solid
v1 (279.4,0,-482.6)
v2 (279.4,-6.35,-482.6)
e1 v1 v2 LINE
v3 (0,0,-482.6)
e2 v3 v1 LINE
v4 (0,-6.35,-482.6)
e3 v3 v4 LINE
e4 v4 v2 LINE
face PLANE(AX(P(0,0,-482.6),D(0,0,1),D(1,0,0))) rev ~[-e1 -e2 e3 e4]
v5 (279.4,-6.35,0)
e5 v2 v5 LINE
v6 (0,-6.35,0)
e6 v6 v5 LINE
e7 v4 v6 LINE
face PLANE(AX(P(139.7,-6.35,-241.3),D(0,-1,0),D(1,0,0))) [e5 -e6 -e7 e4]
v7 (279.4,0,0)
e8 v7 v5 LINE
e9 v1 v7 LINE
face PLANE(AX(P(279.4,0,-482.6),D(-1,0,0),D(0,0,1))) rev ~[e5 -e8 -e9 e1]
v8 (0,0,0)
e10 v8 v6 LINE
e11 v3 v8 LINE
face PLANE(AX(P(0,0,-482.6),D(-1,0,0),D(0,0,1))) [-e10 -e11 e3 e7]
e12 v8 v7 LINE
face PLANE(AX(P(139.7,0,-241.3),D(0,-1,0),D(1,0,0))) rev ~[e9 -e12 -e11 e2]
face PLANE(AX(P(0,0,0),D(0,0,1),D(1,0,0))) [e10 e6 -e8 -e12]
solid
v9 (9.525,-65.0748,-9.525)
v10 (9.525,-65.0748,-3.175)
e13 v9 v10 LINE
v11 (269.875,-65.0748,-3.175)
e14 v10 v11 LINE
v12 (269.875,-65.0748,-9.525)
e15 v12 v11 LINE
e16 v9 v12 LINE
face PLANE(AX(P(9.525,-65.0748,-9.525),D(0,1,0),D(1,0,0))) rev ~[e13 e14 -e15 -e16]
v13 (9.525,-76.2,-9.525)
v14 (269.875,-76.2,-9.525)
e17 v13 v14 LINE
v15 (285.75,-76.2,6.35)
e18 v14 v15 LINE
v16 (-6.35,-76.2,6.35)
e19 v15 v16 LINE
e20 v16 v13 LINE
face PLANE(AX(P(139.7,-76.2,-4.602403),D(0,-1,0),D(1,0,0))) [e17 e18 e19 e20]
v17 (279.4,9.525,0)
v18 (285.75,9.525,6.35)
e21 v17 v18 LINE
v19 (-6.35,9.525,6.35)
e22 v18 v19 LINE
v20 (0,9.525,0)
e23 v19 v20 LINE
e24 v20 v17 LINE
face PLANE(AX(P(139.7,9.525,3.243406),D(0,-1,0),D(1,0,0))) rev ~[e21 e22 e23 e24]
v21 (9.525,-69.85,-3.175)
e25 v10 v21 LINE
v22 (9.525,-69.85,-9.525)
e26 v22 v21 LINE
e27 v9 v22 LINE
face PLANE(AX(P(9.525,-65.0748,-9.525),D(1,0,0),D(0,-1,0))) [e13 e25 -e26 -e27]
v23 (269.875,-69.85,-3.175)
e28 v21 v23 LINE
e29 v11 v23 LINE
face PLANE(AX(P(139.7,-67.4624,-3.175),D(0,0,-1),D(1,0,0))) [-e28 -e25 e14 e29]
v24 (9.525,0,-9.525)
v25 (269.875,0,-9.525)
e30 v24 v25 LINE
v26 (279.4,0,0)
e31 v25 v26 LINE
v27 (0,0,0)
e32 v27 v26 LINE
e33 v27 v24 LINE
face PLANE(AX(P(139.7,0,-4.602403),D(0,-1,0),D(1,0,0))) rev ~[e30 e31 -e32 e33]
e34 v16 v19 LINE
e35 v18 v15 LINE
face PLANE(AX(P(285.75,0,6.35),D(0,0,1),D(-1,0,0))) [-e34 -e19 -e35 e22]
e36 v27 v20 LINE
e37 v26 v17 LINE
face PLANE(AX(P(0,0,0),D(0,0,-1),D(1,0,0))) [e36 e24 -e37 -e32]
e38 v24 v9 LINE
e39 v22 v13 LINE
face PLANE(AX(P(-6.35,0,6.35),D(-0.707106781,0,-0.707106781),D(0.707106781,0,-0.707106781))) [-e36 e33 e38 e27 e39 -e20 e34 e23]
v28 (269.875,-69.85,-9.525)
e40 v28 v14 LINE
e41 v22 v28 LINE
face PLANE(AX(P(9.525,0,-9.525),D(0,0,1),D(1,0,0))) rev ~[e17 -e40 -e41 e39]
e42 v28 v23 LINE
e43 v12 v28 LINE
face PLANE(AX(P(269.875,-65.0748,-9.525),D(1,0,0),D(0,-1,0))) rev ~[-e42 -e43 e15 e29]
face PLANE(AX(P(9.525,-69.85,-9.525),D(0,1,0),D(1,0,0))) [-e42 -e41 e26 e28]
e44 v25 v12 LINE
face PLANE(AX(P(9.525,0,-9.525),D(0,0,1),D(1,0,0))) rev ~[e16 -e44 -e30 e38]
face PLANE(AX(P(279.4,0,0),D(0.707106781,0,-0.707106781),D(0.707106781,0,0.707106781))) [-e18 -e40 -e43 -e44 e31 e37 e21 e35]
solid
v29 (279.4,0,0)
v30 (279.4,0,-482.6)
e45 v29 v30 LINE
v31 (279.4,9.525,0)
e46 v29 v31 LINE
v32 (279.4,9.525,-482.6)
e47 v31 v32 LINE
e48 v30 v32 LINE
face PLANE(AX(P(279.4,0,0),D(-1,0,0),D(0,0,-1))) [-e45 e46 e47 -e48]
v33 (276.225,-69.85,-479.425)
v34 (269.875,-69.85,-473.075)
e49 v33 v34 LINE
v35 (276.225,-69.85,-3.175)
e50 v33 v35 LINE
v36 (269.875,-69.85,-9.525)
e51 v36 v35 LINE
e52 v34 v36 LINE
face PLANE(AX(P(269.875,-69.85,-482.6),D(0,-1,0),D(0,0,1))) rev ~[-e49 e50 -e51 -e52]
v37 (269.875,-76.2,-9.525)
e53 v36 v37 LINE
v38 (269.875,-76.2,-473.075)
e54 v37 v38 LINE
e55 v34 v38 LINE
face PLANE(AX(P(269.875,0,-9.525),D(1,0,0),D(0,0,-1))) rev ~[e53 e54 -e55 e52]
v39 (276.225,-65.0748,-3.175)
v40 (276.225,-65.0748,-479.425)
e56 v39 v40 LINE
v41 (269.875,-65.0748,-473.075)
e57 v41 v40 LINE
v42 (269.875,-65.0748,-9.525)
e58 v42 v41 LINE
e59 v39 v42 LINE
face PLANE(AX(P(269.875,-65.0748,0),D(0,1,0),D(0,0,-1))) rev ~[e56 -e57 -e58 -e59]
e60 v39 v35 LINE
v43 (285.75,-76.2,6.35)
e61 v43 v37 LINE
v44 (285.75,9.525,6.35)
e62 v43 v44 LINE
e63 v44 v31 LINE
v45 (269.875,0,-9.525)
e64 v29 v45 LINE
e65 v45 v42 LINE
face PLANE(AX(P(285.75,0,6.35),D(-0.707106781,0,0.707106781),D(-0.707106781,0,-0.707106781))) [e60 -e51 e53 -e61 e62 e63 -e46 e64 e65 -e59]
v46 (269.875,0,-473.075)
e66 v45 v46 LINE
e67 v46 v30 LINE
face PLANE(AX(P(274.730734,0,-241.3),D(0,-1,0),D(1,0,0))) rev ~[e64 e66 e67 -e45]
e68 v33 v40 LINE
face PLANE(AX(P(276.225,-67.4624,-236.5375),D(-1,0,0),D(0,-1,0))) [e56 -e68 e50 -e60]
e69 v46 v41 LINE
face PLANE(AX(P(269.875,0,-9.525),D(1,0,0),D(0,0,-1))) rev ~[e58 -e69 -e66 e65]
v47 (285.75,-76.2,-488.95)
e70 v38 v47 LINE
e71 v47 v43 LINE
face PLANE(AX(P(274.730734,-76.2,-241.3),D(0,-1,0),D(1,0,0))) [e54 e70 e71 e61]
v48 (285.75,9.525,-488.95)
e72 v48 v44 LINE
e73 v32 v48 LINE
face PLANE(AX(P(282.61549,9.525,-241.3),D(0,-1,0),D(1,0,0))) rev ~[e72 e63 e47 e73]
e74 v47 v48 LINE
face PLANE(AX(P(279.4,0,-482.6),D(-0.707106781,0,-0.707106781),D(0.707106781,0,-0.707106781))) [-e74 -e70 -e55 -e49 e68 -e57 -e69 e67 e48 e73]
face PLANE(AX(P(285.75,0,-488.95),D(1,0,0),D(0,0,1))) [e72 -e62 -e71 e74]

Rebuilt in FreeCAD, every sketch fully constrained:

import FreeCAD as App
import Part
import Sketcher
Q = App.Units.Quantity

doc = App.newDocument("Part")
params = doc.addObject("Spreadsheet::Sheet", "Params")
for row, (alias, value) in enumerate([
    ("sketch1_width", "11 in"),
    ("sketch1_height", "19 in"),
    ("pad1_length", "0.25 in"),
    ("sketch2_height", "19.5 in"),
    ("sketch2_height2", "18.25 in"),
    ("pad2_length", "3 in"),
    ("sketch3_height", "19 in"),
    ("sketch3_height2", "19.5 in"),
    ("pad3_length", "0.375 in"),
    ("sketch4_height", "19 in"),
    ("sketch4_width", "0.188 in"),
    ("pocket1_length", "0.25 in"),
    ("sketch5_width", "11.5 in"),
    ("sketch5_width2", "10.25 in"),
    ("pad4_length", "3 in"),
    ("sketch6_width", "11 in"),
    ("sketch6_width2", "11.5 in"),
    ("pad5_length", "0.375 in"),
    ("sketch7_width", "10.25 in"),
    ("sketch7_height", "0.188 in"),
    ("pocket2_length", "0.25 in"),
], start=1):
    params.set(f"A{row}", alias)
    params.set(f"B{row}", "=" + value)
    params.setAlias(f"B{row}", alias)

body = doc.addObject("PartDesign::Body", "Body")

# Sketch on XZ plane
sketch1 = doc.addObject("Sketcher::SketchObject", "Sketch")
body.addObject(sketch1)
sketch1.AttachmentSupport = (doc.XZ_Plane, [""])
sketch1.MapMode = "FlatFace"
sketch1.addGeometry([
    Part.LineSegment(App.Vector(0, 0, 0), App.Vector(0, -483, 0)),
    Part.LineSegment(App.Vector(0, -483, 0), App.Vector(279, -483, 0)),
    Part.LineSegment(App.Vector(279, -483, 0), App.Vector(279, 0, 0)),
    Part.LineSegment(App.Vector(279, 0, 0), App.Vector(0, 0, 0)),
], False)
sketch1.addConstraint([
    Sketcher.Constraint("Coincident", 0, 2, 1, 1),
    Sketcher.Constraint("Coincident", 1, 2, 2, 1),
    Sketcher.Constraint("Coincident", 2, 2, 3, 1),
    Sketcher.Constraint("Coincident", 3, 2, 0, 1),
    Sketcher.Constraint("Vertical", 0),
    Sketcher.Constraint("Horizontal", 1),
    Sketcher.Constraint("Vertical", 2),
    Sketcher.Constraint("Horizontal", 3),
    Sketcher.Constraint("Coincident", 3, 2, -1, 1),
    Sketcher.Constraint("DistanceX", 1, 1, 1, 2, Q("11 in")),
    Sketcher.Constraint("DistanceY", 0, 2, 0, 1, Q("19 in")),
])
sketch1.setExpression("Constraints[9]", "Params.sketch1_width")
sketch1.setExpression("Constraints[10]", "Params.sketch1_height")
pad1 = doc.addObject("PartDesign::Pad", "Pad")
body.addObject(pad1)
pad1.Profile = sketch1
pad1.setExpression("Length", "Params.pad1_length")
body2 = doc.addObject("PartDesign::Body", "Body001")

# Sketch on XZ plane
sketch2 = doc.addObject("Sketcher::SketchObject", "Sketch001")
body2.addObject(sketch2)
sketch2.AttachmentSupport = (doc.getObject("XZ_Plane001"), [""])
sketch2.MapMode = "FlatFace"
sketch2.addGeometry([
    Part.LineSegment(App.Vector(270, -10, 0), App.Vector(270, -473, 0)),
    Part.LineSegment(App.Vector(270, -473, 0), App.Vector(286, -489, 0)),
    Part.LineSegment(App.Vector(286, -489, 0), App.Vector(286, 6, 0)),
    Part.LineSegment(App.Vector(286, 6, 0), App.Vector(270, -10, 0)),
], False)
sketch2.addConstraint([
    Sketcher.Constraint("Coincident", 0, 2, 1, 1),
    Sketcher.Constraint("Coincident", 1, 2, 2, 1),
    Sketcher.Constraint("Coincident", 2, 2, 3, 1),
    Sketcher.Constraint("Coincident", 3, 2, 0, 1),
    Sketcher.Constraint("Vertical", 0),
    Sketcher.Constraint("Vertical", 2),
    Sketcher.Constraint("Perpendicular", 1, 3),
    Sketcher.Constraint("Equal", 1, 3),
    Sketcher.Constraint("DistanceY", 2, 1, 2, 2, Q("19.5 in")),
    Sketcher.Constraint("DistanceY", 0, 2, 0, 1, Q("18.25 in")),
    Sketcher.Constraint("DistanceX", -1, 1, 1, 2, Q("11.25 in")),
    Sketcher.Constraint("DistanceY", 1, 2, -1, 1, Q("19.25 in")),
])
sketch2.setExpression("Constraints[8]", "Params.sketch2_height")
sketch2.setExpression("Constraints[9]", "Params.sketch2_height2")
pad2 = doc.addObject("PartDesign::Pad", "Pad001")
body2.addObject(pad2)
pad2.Profile = sketch2
pad2.setExpression("Length", "Params.pad2_length")

# Sketch on XZ plane
sketch3 = doc.addObject("Sketcher::SketchObject", "Sketch002")
body2.addObject(sketch3)
sketch3.AttachmentSupport = (doc.getObject("XZ_Plane001"), [""])
sketch3.MapMode = "FlatFace"
sketch3.addGeometry([
    Part.LineSegment(App.Vector(286, 6, 0), App.Vector(279, 0, 0)),
    Part.LineSegment(App.Vector(279, 0, 0), App.Vector(279, -483, 0)),
    Part.LineSegment(App.Vector(279, -483, 0), App.Vector(286, -489, 0)),
    Part.LineSegment(App.Vector(286, -489, 0), App.Vector(286, 6, 0)),
], False)
sketch3.addConstraint([
    Sketcher.Constraint("Coincident", 0, 2, 1, 1),
    Sketcher.Constraint("Coincident", 1, 2, 2, 1),
    Sketcher.Constraint("Coincident", 2, 2, 3, 1),
    Sketcher.Constraint("Coincident", 3, 2, 0, 1),
    Sketcher.Constraint("Vertical", 1),
    Sketcher.Constraint("Vertical", 3),
    Sketcher.Constraint("PointOnObject", 0, 2, -1),
    Sketcher.Constraint("Perpendicular", 0, 2),
    Sketcher.Constraint("Equal", 0, 2),
    Sketcher.Constraint("DistanceY", 1, 2, 1, 1, Q("19 in")),
    Sketcher.Constraint("DistanceY", 3, 1, 3, 2, Q("19.5 in")),
    Sketcher.Constraint("DistanceX", -1, 1, 0, 2, Q("11 in")),
])
sketch3.setExpression("Constraints[9]", "Params.sketch3_height")
sketch3.setExpression("Constraints[10]", "Params.sketch3_height2")
pad3 = doc.addObject("PartDesign::Pad", "Pad002")
body2.addObject(pad3)
pad3.Profile = sketch3
pad3.setExpression("Length", "Params.pad3_length")
pad3.Reversed = True

# Sketch on YZ plane
sketch4 = doc.addObject("Sketcher::SketchObject", "Sketch003")
body2.addObject(sketch4)
sketch4.AttachmentSupport = (doc.getObject("YZ_Plane001"), [""])
sketch4.MapMode = "FlatFace"
sketch4.AttachmentOffset = App.Placement(App.Vector(0, 0, 10.625 * 25.4), App.Rotation())
sketch4.addGeometry([
    Part.LineSegment(App.Vector(-65.1, 0, 0), App.Vector(-65.1, -482.6, 0)),
    Part.LineSegment(App.Vector(-65.1, -482.6, 0), App.Vector(-69.8, -482.6, 0)),
    Part.LineSegment(App.Vector(-69.8, -482.6, 0), App.Vector(-69.8, 0, 0)),
    Part.LineSegment(App.Vector(-69.8, 0, 0), App.Vector(-65.1, 0, 0)),
], False)
sketch4.addConstraint([
    Sketcher.Constraint("Coincident", 0, 2, 1, 1),
    Sketcher.Constraint("Coincident", 1, 2, 2, 1),
    Sketcher.Constraint("Coincident", 2, 2, 3, 1),
    Sketcher.Constraint("Coincident", 3, 2, 0, 1),
    Sketcher.Constraint("Vertical", 0),
    Sketcher.Constraint("Horizontal", 1),
    Sketcher.Constraint("Vertical", 2),
    Sketcher.Constraint("Horizontal", 3),
    Sketcher.Constraint("PointOnObject", 2, 2, -1),
    Sketcher.Constraint("DistanceY", 0, 2, 0, 1, Q("19 in")),
    Sketcher.Constraint("DistanceX", 1, 2, 1, 1, Q("0.188 in")),
    Sketcher.Constraint("DistanceX", 1, 2, -1, 1, Q("2.75 in")),
])
sketch4.setExpression("Constraints[9]", "Params.sketch4_height")
sketch4.setExpression("Constraints[10]", "Params.sketch4_width")
pocket1 = doc.addObject("PartDesign::Pocket", "Pocket")
body2.addObject(pocket1)
pocket1.Profile = sketch4
pocket1.setExpression("Length", "Params.pocket1_length")
pocket1.Reversed = True
body3 = doc.addObject("PartDesign::Body", "Body002")

# Sketch on XZ plane
sketch5 = doc.addObject("Sketcher::SketchObject", "Sketch004")
body3.addObject(sketch5)
sketch5.AttachmentSupport = (doc.getObject("XZ_Plane002"), [""])
sketch5.MapMode = "FlatFace"
sketch5.addGeometry([
    Part.LineSegment(App.Vector(10, -10, 0), App.Vector(270, -10, 0)),
    Part.LineSegment(App.Vector(270, -10, 0), App.Vector(286, 6, 0)),
    Part.LineSegment(App.Vector(286, 6, 0), App.Vector(-6, 6, 0)),
    Part.LineSegment(App.Vector(-6, 6, 0), App.Vector(10, -10, 0)),
], False)
sketch5.addConstraint([
    Sketcher.Constraint("Coincident", 0, 2, 1, 1),
    Sketcher.Constraint("Coincident", 1, 2, 2, 1),
    Sketcher.Constraint("Coincident", 2, 2, 3, 1),
    Sketcher.Constraint("Coincident", 3, 2, 0, 1),
    Sketcher.Constraint("Horizontal", 0),
    Sketcher.Constraint("Horizontal", 2),
    Sketcher.Constraint("Perpendicular", 1, 3),
    Sketcher.Constraint("Equal", 1, 3),
    Sketcher.Constraint("DistanceX", 2, 2, 2, 1, Q("11.5 in")),
    Sketcher.Constraint("DistanceX", 0, 1, 0, 2, Q("10.25 in")),
    Sketcher.Constraint("DistanceX", -1, 1, 1, 2, Q("11.25 in")),
    Sketcher.Constraint("DistanceY", -1, 1, 1, 2, Q("0.25 in")),
])
sketch5.setExpression("Constraints[8]", "Params.sketch5_width")
sketch5.setExpression("Constraints[9]", "Params.sketch5_width2")
pad4 = doc.addObject("PartDesign::Pad", "Pad003")
body3.addObject(pad4)
pad4.Profile = sketch5
pad4.setExpression("Length", "Params.pad4_length")

# Sketch on XZ plane
sketch6 = doc.addObject("Sketcher::SketchObject", "Sketch005")
body3.addObject(sketch6)
sketch6.AttachmentSupport = (doc.getObject("XZ_Plane002"), [""])
sketch6.MapMode = "FlatFace"
sketch6.addGeometry([
    Part.LineSegment(App.Vector(0, 0, 0), App.Vector(279, 0, 0)),
    Part.LineSegment(App.Vector(279, 0, 0), App.Vector(286, 6, 0)),
    Part.LineSegment(App.Vector(286, 6, 0), App.Vector(-6, 6, 0)),
    Part.LineSegment(App.Vector(-6, 6, 0), App.Vector(0, 0, 0)),
], False)
sketch6.addConstraint([
    Sketcher.Constraint("Coincident", 0, 2, 1, 1),
    Sketcher.Constraint("Coincident", 1, 2, 2, 1),
    Sketcher.Constraint("Coincident", 2, 2, 3, 1),
    Sketcher.Constraint("Coincident", 3, 2, 0, 1),
    Sketcher.Constraint("Horizontal", 0),
    Sketcher.Constraint("Horizontal", 2),
    Sketcher.Constraint("Coincident", 3, 2, -1, 1),
    Sketcher.Constraint("Perpendicular", 1, 3),
    Sketcher.Constraint("Equal", 1, 3),
    Sketcher.Constraint("DistanceX", 0, 1, 0, 2, Q("11 in")),
    Sketcher.Constraint("DistanceX", 2, 2, 2, 1, Q("11.5 in")),
])
sketch6.setExpression("Constraints[9]", "Params.sketch6_width")
sketch6.setExpression("Constraints[10]", "Params.sketch6_width2")
pad5 = doc.addObject("PartDesign::Pad", "Pad004")
body3.addObject(pad5)
pad5.Profile = sketch6
pad5.setExpression("Length", "Params.pad5_length")
pad5.Reversed = True

# Sketch on XY plane
sketch7 = doc.addObject("Sketcher::SketchObject", "Sketch006")
body3.addObject(sketch7)
sketch7.AttachmentSupport = (doc.getObject("XY_Plane002"), [""])
sketch7.MapMode = "FlatFace"
sketch7.AttachmentOffset = App.Placement(App.Vector(0, 0, -0.375 * 25.4), App.Rotation())
sketch7.addGeometry([
    Part.LineSegment(App.Vector(9.5, -69.8, 0), App.Vector(9.5, -65.1, 0)),
    Part.LineSegment(App.Vector(9.5, -65.1, 0), App.Vector(269.9, -65.1, 0)),
    Part.LineSegment(App.Vector(269.9, -65.1, 0), App.Vector(269.9, -69.8, 0)),
    Part.LineSegment(App.Vector(269.9, -69.8, 0), App.Vector(9.5, -69.8, 0)),
], False)
sketch7.addConstraint([
    Sketcher.Constraint("Coincident", 0, 2, 1, 1),
    Sketcher.Constraint("Coincident", 1, 2, 2, 1),
    Sketcher.Constraint("Coincident", 2, 2, 3, 1),
    Sketcher.Constraint("Coincident", 3, 2, 0, 1),
    Sketcher.Constraint("Vertical", 0),
    Sketcher.Constraint("Horizontal", 1),
    Sketcher.Constraint("Vertical", 2),
    Sketcher.Constraint("Horizontal", 3),
    Sketcher.Constraint("DistanceX", 1, 1, 1, 2, Q("10.25 in")),
    Sketcher.Constraint("DistanceY", 0, 1, 0, 2, Q("0.188 in")),
    Sketcher.Constraint("DistanceY", 2, 2, -1, 1, Q("2.75 in")),
    Sketcher.Constraint("DistanceX", -1, 1, 0, 2, Q("0.375 in")),
])
sketch7.setExpression("Constraints[8]", "Params.sketch7_width")
sketch7.setExpression("Constraints[9]", "Params.sketch7_height")
pocket2 = doc.addObject("PartDesign::Pocket", "Pocket001")
body3.addObject(pocket2)
pocket2.Profile = sketch7
pocket2.setExpression("Length", "Params.pocket2_length")
pocket2.Reversed = True

doc.recompute()
